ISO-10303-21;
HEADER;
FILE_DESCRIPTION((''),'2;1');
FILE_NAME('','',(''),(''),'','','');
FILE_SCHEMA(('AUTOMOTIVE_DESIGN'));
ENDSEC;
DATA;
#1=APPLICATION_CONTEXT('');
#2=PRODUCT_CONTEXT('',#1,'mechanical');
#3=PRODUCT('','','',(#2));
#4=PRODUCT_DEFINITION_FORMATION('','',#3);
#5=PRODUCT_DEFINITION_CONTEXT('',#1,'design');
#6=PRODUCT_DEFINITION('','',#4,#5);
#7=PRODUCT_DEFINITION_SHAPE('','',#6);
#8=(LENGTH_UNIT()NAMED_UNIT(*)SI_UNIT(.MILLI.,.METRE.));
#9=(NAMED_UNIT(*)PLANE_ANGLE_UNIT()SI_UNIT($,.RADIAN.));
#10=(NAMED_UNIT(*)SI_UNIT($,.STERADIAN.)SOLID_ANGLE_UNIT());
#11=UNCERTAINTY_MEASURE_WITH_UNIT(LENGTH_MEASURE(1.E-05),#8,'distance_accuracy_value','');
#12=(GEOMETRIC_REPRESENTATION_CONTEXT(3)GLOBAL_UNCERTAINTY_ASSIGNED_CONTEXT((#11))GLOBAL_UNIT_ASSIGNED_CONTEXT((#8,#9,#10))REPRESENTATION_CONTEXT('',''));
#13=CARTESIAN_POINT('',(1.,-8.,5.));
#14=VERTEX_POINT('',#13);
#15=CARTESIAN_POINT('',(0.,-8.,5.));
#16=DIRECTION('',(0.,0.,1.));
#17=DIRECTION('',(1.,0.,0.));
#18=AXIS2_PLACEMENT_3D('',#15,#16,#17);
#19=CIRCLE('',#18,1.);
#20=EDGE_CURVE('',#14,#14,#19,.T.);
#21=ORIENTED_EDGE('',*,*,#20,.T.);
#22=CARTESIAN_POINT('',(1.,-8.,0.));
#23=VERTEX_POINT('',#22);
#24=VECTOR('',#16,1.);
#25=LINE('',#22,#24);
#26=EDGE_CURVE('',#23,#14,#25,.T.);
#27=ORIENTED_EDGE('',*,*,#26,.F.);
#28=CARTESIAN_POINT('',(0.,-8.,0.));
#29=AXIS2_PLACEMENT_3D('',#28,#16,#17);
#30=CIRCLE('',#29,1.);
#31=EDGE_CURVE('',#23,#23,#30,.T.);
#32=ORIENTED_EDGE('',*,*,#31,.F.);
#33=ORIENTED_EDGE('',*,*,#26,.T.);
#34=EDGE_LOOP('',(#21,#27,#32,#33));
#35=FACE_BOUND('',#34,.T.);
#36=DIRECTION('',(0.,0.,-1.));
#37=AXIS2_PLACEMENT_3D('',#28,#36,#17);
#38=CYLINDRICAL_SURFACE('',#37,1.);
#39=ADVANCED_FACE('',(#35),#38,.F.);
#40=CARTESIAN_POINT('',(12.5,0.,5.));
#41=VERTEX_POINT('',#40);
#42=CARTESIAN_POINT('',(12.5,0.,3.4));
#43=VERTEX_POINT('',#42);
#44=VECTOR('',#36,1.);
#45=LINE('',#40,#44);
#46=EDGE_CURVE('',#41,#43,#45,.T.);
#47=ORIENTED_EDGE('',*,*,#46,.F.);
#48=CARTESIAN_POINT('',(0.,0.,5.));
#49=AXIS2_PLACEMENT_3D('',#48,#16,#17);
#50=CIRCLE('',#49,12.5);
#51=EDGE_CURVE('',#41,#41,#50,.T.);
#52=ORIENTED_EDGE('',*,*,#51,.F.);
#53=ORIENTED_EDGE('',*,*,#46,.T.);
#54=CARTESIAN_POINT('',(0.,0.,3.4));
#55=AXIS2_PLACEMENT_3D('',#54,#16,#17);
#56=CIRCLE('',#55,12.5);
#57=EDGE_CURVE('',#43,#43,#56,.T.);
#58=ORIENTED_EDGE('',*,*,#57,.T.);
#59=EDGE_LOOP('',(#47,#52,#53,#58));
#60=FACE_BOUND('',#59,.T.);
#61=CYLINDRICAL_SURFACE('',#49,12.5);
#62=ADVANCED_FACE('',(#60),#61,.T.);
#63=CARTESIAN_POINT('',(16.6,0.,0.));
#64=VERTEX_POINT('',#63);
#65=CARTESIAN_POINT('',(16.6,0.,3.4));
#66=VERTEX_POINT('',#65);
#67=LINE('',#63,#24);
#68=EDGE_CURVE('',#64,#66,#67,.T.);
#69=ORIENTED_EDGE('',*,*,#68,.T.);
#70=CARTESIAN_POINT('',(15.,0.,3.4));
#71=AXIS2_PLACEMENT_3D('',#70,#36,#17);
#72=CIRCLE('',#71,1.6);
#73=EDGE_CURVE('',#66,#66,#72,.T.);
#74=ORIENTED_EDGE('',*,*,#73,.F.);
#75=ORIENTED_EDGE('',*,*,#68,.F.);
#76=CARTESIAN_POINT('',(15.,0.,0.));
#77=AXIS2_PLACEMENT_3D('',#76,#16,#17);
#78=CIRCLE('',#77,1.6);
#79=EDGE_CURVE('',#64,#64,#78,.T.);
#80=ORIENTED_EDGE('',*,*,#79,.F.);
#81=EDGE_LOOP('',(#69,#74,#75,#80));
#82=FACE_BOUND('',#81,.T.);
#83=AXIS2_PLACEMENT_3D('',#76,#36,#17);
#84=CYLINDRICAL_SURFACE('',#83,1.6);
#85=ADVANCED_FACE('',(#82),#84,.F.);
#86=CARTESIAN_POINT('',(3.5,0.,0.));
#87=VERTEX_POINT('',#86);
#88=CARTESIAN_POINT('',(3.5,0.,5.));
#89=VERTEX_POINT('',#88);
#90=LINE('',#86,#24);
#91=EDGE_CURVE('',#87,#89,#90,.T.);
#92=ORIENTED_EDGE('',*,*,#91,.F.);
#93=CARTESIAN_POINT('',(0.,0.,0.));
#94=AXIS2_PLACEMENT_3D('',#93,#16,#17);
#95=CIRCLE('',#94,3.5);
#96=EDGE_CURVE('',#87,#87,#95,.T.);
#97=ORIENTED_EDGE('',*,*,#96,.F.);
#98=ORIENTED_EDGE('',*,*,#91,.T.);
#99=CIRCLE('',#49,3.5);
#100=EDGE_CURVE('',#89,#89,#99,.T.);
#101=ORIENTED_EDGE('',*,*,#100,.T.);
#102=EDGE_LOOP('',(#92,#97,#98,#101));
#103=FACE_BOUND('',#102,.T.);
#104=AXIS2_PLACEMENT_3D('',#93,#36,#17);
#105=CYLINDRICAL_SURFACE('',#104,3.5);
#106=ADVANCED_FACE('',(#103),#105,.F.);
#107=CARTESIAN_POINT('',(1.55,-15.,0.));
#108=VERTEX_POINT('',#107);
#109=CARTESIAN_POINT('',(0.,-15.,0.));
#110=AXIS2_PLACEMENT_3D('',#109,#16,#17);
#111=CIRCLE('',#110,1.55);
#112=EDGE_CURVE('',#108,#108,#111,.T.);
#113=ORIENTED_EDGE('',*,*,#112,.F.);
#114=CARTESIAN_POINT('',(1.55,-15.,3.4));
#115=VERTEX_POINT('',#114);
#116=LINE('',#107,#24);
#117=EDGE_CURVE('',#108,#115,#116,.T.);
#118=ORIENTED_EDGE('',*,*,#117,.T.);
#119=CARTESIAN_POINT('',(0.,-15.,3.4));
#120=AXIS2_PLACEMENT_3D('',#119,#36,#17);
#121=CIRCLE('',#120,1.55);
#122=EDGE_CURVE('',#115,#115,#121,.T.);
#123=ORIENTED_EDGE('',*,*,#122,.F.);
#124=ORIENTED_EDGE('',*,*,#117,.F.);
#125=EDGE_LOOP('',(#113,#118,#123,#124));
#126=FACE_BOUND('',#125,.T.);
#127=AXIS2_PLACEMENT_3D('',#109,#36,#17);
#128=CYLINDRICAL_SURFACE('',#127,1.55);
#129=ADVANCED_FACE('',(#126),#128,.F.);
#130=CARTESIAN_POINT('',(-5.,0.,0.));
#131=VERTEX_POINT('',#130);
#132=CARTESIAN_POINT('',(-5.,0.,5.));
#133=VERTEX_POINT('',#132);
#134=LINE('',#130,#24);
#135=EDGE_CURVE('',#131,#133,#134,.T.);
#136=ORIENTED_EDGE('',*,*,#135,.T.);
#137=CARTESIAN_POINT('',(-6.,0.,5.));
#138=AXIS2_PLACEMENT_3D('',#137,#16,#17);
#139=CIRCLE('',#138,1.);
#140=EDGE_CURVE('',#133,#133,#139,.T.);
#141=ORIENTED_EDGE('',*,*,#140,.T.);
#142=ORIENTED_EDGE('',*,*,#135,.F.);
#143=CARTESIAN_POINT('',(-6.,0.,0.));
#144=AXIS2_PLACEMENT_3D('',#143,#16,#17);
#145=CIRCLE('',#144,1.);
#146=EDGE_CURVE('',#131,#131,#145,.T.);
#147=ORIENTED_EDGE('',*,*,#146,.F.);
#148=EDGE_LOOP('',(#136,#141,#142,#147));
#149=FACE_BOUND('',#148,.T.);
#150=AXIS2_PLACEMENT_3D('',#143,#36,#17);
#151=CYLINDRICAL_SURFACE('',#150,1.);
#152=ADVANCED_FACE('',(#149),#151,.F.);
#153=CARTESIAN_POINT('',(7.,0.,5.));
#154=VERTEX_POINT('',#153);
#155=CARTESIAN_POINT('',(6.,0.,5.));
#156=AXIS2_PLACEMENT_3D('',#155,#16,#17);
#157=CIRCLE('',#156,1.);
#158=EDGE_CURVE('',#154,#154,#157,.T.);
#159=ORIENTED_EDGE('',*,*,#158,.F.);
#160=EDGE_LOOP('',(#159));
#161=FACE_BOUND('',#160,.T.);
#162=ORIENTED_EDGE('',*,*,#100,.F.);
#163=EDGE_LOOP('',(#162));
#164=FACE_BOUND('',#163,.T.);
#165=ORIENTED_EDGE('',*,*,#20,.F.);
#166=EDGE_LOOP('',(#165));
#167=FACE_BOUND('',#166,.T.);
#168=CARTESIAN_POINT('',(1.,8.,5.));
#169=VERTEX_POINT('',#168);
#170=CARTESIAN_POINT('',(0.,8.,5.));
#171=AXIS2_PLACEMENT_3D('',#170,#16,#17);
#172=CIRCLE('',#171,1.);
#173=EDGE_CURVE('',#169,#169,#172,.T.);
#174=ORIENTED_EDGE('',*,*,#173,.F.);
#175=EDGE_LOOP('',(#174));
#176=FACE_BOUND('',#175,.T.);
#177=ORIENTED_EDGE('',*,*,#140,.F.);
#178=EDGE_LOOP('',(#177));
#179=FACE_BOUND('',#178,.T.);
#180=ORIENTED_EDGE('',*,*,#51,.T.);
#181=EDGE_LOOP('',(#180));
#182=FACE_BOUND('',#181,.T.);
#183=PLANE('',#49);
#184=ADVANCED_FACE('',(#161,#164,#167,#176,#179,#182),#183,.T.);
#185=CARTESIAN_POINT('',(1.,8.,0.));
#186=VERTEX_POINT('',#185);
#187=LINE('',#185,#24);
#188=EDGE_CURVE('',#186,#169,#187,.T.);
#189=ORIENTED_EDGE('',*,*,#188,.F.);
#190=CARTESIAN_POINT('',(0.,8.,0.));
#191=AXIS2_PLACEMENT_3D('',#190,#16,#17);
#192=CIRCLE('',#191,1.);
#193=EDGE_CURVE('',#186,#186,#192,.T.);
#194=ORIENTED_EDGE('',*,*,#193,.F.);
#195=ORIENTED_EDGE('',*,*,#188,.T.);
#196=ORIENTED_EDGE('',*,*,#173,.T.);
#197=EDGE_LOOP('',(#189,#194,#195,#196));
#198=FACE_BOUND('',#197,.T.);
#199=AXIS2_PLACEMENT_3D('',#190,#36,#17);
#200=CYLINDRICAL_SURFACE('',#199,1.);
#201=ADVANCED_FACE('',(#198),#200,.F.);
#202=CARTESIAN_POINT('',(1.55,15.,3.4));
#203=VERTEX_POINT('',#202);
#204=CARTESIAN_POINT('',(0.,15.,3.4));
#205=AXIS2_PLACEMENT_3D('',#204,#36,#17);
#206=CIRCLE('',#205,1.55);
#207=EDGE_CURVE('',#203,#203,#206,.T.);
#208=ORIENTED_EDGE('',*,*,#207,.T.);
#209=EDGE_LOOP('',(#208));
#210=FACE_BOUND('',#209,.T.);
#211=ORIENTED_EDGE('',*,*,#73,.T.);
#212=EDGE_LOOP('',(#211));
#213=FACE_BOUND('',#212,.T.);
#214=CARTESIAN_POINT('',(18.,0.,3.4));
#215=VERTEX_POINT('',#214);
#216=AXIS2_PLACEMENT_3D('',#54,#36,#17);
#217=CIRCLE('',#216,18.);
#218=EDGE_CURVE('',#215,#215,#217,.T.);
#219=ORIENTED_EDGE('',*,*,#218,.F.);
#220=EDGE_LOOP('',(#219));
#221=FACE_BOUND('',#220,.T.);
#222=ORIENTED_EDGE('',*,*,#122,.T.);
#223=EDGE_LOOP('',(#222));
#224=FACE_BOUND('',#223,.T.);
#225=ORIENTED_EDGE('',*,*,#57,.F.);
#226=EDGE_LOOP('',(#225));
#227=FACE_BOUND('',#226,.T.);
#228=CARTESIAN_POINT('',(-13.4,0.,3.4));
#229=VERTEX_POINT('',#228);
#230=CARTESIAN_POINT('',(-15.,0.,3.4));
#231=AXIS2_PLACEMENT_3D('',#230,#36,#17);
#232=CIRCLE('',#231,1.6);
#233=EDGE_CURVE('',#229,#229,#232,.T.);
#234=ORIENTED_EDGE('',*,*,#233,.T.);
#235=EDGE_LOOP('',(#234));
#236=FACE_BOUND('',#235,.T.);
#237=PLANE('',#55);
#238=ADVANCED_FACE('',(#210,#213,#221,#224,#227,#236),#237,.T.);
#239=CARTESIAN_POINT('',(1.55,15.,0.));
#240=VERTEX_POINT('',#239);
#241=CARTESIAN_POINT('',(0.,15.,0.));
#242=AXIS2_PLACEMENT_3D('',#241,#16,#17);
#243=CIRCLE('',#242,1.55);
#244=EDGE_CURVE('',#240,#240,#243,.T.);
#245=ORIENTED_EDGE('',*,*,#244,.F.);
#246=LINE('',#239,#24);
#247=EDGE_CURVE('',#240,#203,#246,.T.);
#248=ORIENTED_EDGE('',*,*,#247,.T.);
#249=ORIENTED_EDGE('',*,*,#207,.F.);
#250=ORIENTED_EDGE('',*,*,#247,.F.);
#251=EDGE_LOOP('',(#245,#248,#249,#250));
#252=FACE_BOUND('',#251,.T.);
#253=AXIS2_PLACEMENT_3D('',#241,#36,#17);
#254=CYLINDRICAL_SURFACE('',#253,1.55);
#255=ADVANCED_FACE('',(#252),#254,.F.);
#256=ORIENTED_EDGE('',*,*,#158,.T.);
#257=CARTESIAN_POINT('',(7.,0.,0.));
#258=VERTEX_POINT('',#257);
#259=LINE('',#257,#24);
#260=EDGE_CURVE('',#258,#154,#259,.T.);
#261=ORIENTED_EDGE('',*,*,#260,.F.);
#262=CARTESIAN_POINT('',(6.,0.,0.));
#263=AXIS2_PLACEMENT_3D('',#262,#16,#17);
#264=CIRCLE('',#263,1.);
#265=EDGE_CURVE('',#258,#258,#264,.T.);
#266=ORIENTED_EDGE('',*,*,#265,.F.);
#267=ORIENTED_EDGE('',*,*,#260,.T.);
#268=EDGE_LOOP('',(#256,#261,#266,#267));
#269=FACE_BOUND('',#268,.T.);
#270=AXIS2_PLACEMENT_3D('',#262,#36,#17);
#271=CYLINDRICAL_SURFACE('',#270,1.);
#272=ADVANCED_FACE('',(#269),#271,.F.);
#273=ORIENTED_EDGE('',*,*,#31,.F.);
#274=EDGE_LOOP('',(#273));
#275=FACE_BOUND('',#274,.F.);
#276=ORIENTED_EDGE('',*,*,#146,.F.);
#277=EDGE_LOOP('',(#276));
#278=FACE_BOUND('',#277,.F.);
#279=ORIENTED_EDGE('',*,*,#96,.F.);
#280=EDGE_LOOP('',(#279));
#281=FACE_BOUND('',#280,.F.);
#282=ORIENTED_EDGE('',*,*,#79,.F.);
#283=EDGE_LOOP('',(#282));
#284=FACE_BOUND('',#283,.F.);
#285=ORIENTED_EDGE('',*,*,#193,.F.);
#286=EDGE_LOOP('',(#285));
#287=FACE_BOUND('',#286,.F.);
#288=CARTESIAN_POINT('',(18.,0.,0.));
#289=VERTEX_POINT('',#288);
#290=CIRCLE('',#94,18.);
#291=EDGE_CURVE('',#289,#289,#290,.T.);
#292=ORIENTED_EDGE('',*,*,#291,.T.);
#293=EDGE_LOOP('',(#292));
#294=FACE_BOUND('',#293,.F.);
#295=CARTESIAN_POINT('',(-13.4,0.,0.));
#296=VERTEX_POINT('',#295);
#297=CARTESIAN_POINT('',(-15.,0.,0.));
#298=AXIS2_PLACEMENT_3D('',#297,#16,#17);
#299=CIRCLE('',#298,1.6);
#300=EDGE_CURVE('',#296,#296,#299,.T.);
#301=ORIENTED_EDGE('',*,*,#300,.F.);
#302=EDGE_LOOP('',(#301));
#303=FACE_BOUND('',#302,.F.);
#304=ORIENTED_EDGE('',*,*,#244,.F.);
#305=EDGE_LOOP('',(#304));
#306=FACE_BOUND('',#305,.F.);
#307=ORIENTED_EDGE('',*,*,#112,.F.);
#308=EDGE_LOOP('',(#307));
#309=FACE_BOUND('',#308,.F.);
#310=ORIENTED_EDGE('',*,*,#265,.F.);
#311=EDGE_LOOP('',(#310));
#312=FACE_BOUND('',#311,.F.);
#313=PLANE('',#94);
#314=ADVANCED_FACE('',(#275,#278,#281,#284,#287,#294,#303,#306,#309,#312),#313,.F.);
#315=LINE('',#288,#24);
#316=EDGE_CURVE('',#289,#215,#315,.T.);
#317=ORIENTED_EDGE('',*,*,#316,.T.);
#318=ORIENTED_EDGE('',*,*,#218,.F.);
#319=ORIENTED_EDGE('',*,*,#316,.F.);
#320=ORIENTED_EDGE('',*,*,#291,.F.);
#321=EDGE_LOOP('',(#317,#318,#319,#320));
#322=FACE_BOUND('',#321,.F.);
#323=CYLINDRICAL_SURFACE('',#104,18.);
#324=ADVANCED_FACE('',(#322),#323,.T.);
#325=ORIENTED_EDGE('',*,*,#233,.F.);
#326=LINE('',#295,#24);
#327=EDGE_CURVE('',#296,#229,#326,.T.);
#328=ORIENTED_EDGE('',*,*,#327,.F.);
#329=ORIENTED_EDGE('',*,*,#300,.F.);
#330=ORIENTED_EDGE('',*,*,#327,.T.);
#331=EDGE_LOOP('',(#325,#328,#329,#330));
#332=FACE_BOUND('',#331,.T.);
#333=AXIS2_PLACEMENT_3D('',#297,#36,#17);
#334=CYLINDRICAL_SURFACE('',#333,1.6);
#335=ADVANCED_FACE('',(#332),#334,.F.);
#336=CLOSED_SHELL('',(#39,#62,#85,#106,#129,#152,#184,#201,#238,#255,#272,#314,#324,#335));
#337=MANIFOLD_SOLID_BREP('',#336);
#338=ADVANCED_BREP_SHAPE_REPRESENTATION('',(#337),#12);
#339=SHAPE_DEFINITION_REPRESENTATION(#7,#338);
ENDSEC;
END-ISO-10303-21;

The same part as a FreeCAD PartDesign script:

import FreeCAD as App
import Part
import Sketcher

doc = App.newDocument("Part")
body = doc.addObject("PartDesign::Body", "Body")

# Sketch on XY plane
sketch1 = doc.addObject("Sketcher::SketchObject", "Sketch")
body.addObject(sketch1)
sketch1.AttachmentSupport = (doc.XY_Plane, [""])
sketch1.MapMode = "FlatFace"
sketch1.AttachmentOffset = App.Placement(App.Vector(0, 0, 5), App.Rotation())
sketch1.addGeometry([
    Part.Circle(App.Vector(0, 0, 0), App.Vector(0, 0, 1), 40),
    Part.Circle(App.Vector(0, 0, 0), App.Vector(0, 0, 1), 12),
], False)
sketch1.addConstraint([
    Sketcher.Constraint("Coincident", 0, 3, -1, 1),
    Sketcher.Constraint("Coincident", 1, 3, -1, 1),
    Sketcher.Constraint("Diameter", 0, 80.0),
    Sketcher.Constraint("Diameter", 1, 25.0),
])
pad1 = doc.addObject("PartDesign::Pad", "Pad")
body.addObject(pad1)
pad1.Profile = sketch1
pad1.Length = 1.6
pad1.Reversed = True
body2 = doc.addObject("PartDesign::Body", "Body001")

# Sketch on XY plane
sketch2 = doc.addObject("Sketcher::SketchObject", "Sketch001")
body2.addObject(sketch2)
sketch2.AttachmentSupport = (doc.getObject("XY_Plane001"), [""])
sketch2.MapMode = "FlatFace"
sketch2.addGeometry([
    Part.Circle(App.Vector(0, 0, 0), App.Vector(0, 0, 1), 18),  # 0
    Part.Circle(App.Vector(0, -15, 0), App.Vector(0, 0, 1), 1.6),  # 1
    Part.Circle(App.Vector(0, -8, 0), App.Vector(0, 0, 1), 1),  # 2
    Part.Circle(App.Vector(-15, 0, 0), App.Vector(0, 0, 1), 1.6),  # 3
    Part.Circle(App.Vector(-6, 0, 0), App.Vector(0, 0, 1), 1),  # 4
    Part.Circle(App.Vector(0, 0, 0), App.Vector(0, 0, 1), 3.5),  # 5
    Part.Circle(App.Vector(6, 0, 0), App.Vector(0, 0, 1), 1),  # 6
    Part.Circle(App.Vector(0, 8, 0), App.Vector(0, 0, 1), 1),  # 7
    Part.Circle(App.Vector(15, 0, 0), App.Vector(0, 0, 1), 1.6),  # 8
    Part.Circle(App.Vector(0, 15, 0), App.Vector(0, 0, 1), 1.6),  # 9
], False)
sketch2.addConstraint([
    Sketcher.Constraint("Coincident", 0, 3, -1, 1),
    Sketcher.Constraint("Coincident", 5, 3, -1, 1),
    Sketcher.Constraint("Equal", 2, 4),
    Sketcher.Constraint("Equal", 4, 6),
    Sketcher.Constraint("Equal", 6, 7),
    Sketcher.Constraint("Equal", 3, 8),
    Sketcher.Constraint("Equal", 1, 9),
    Sketcher.Constraint("Symmetric", 4, 3, 6, 3, -1, 1),
    Sketcher.Constraint("Symmetric", 2, 3, 7, 3, -1, 1),
    Sketcher.Constraint("Symmetric", 3, 3, 8, 3, -1, 1),
    Sketcher.Constraint("Symmetric", 1, 3, 9, 3, -1, 1),
    Sketcher.Constraint("PointOnObject", 1, 3, -2),
    Sketcher.Constraint("PointOnObject", 2, 3, -2),
    Sketcher.Constraint("PointOnObject", 3, 3, -1),
    Sketcher.Constraint("PointOnObject", 4, 3, -1),
    Sketcher.Constraint("Diameter", 0, 36.0),
    Sketcher.Constraint("Diameter", 2, 2.0),
    Sketcher.Constraint("Diameter", 5, 7.0),
    Sketcher.Constraint("Diameter", 1, 3.1),
    Sketcher.Constraint("Diameter", 3, 3.2),
    Sketcher.Constraint("DistanceY", 1, 3, -1, 1, 15.0),
    Sketcher.Constraint("DistanceY", 2, 3, -1, 1, 8.0),
    Sketcher.Constraint("DistanceX", 3, 3, -1, 1, 15.0),
    Sketcher.Constraint("DistanceX", 4, 3, -1, 1, 6.0),
])
pad2 = doc.addObject("PartDesign::Pad", "Pad001")
body2.addObject(pad2)
pad2.Profile = sketch2
pad2.Length = 5
doc.recompute()

boolean = doc.addObject("PartDesign::Boolean", "Boolean")
body2.addObject(boolean)
boolean.Type = "Cut"
boolean.addObjects([body])

doc.recompute()
